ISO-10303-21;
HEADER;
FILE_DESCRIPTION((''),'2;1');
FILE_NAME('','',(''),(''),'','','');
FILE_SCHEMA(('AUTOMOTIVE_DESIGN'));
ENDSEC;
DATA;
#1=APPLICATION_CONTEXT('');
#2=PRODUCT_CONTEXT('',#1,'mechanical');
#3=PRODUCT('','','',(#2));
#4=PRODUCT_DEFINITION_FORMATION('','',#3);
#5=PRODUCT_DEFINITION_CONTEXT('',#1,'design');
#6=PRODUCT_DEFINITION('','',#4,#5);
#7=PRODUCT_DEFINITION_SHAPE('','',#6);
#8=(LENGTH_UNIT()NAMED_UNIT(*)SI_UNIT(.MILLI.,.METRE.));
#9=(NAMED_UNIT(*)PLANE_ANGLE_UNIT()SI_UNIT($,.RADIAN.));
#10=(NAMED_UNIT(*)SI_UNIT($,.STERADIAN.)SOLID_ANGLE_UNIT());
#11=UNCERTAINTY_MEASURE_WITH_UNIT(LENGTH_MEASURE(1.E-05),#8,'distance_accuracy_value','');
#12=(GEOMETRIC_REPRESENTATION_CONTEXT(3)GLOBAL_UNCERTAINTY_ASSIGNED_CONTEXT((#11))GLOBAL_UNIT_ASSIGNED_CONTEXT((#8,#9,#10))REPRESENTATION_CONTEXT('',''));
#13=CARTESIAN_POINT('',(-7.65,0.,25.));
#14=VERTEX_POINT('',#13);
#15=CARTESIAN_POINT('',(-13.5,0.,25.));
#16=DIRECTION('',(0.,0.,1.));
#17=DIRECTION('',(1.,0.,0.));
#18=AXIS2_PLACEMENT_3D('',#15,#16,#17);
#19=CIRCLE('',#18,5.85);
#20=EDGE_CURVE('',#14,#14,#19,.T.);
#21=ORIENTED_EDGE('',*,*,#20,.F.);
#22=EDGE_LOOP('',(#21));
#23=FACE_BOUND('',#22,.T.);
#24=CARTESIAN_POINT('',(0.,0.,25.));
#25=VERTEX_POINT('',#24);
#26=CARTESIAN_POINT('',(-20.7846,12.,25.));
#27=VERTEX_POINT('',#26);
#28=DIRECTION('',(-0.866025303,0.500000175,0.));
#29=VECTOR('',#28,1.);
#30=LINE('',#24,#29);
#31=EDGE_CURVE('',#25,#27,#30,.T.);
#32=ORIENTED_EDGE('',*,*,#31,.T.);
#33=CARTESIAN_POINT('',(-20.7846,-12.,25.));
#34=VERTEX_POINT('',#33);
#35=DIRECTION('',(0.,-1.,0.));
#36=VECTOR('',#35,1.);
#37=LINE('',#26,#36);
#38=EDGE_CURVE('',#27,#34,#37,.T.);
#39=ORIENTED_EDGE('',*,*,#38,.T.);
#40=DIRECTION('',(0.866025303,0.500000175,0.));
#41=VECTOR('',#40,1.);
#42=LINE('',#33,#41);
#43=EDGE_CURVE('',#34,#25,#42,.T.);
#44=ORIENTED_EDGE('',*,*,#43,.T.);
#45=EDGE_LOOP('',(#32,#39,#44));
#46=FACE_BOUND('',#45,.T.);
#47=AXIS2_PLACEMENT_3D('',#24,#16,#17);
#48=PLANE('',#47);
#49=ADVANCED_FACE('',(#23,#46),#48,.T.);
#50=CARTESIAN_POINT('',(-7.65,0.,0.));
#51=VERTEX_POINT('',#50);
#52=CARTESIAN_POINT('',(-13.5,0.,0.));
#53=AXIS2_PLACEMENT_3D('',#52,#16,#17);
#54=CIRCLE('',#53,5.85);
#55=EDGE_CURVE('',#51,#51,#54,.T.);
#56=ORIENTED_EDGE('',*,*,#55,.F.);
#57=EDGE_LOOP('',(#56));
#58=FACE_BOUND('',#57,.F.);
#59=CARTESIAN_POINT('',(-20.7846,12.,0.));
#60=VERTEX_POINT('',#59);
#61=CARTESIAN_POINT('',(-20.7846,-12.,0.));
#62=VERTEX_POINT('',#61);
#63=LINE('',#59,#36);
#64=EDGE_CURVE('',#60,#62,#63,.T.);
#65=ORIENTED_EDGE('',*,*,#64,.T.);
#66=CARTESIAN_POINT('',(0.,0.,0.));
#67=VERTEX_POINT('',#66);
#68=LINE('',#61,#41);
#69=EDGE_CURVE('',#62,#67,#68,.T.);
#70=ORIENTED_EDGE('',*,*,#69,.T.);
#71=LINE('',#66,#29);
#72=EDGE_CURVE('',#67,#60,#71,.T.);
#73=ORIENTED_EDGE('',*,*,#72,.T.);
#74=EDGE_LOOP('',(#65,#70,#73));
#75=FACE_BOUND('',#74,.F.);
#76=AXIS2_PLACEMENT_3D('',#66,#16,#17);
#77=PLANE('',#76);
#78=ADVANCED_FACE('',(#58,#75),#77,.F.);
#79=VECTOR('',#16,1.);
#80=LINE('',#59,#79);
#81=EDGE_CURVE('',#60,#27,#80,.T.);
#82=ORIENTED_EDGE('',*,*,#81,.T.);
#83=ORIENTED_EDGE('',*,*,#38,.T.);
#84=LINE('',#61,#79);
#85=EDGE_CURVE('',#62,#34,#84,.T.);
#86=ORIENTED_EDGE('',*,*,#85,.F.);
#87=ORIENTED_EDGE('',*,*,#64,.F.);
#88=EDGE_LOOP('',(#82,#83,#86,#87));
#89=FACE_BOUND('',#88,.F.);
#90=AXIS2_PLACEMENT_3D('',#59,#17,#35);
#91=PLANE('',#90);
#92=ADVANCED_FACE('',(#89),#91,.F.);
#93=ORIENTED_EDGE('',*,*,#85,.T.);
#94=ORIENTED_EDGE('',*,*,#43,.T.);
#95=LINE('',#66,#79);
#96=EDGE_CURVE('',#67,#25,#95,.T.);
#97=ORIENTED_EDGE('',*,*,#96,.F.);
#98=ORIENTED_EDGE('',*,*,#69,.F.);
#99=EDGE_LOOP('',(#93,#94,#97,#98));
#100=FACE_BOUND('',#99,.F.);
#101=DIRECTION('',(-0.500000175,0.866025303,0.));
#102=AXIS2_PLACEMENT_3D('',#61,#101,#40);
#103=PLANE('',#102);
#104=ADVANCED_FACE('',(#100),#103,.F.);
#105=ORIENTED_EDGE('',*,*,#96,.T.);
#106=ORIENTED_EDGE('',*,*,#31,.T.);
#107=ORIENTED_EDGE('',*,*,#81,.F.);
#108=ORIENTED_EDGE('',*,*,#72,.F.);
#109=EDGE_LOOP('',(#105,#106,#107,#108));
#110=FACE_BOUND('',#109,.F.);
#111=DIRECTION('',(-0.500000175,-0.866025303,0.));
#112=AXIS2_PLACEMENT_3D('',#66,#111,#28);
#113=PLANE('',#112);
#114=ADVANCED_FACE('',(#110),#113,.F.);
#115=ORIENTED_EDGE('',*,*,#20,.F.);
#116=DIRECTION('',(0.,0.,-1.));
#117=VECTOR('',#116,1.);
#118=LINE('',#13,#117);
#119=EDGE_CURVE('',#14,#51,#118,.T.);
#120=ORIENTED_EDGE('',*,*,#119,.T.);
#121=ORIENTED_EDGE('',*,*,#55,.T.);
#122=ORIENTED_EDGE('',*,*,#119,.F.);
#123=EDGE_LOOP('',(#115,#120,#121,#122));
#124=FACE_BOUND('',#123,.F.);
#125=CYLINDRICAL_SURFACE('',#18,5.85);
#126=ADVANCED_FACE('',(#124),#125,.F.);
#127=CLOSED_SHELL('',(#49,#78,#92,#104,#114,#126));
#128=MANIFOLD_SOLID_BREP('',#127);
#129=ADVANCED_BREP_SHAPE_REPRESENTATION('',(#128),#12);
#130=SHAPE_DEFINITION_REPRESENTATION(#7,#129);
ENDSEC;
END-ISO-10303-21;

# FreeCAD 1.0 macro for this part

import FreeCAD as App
import Part
import Sketcher
Q = App.Units.Quantity


def add_polygon(sketch, points):
    """Adds a closed chain of lines whose ends are joined by coincident constraints."""
    first, n = sketch.GeometryCount, len(points)
    for a, b in zip(points, points[1:] + points[:1]):
        sketch.addGeometry(Part.LineSegment(App.Vector(*a, 0), App.Vector(*b, 0)), False)
    for i in range(n):
        sketch.addConstraint(Sketcher.Constraint("Coincident", first + i, 2, first + (i + 1) % n, 1))

doc = App.newDocument("Part")
params = doc.addObject("Spreadsheet::Sheet", "Params")
for row, (alias, value) in enumerate([
    ("sketch1_height", "24 mm"),
    ("sketch1_length", "24 mm"),
    ("pad1_length", "25 mm"),
    ("sketch2_diameter", "11.7 mm"),
    ("pocket1_length", "25 mm"),
], start=1):
    params.set(f"A{row}", alias)
    params.set(f"B{row}", "=" + value)
    params.setAlias(f"B{row}", alias)

body = doc.addObject("PartDesign::Body", "Body")

# Sketch on XY plane
sketch1 = body.newObject("Sketcher::SketchObject", "Sketch")
sketch1.AttachmentSupport = (doc.getObject("XY_Plane"), [""])
sketch1.MapMode = "FlatFace"
add_polygon(sketch1, [(-21, -12), (0, 0), (-21, 12)])  # lines 0-2
sketch1.addConstraint(Sketcher.Constraint("Vertical", 2))
sketch1.addConstraint(Sketcher.Constraint("Coincident", 0, 2, -1, 1))
sketch1.addConstraint(Sketcher.Constraint("Equal", 0, 1))
sketch1.addConstraint(Sketcher.Constraint("DistanceY", 2, 2, 2, 1, Q("24 mm")))
sketch1.addConstraint(Sketcher.Constraint("Distance", 0, Q("24 mm")))
sketch1.setExpression("Constraints[6]", "Params.sketch1_height")
sketch1.setExpression("Constraints[7]", "Params.sketch1_length")
pad1 = body.newObject("PartDesign::Pad", "Pad")
pad1.Profile = sketch1
pad1.setExpression("Length", "Params.pad1_length")

# Sketch on XY plane
sketch2 = body.newObject("Sketcher::SketchObject", "Sketch001")
sketch2.AttachmentSupport = (doc.getObject("XY_Plane"), [""])
sketch2.MapMode = "FlatFace"
sketch2.AttachmentOffset = App.Placement(App.Vector(0, 0, 25), App.Rotation())
sketch2.addGeometry(Part.Circle(App.Vector(-14, 0, 0), App.Vector(0, 0, 1), 6), False)
sketch2.addConstraint(Sketcher.Constraint("PointOnObject", 0, 3, -1))
sketch2.addConstraint(Sketcher.Constraint("Diameter", 0, Q("11.7 mm")))
sketch2.addConstraint(Sketcher.Constraint("DistanceX", 0, 3, -1, 1, Q("13.5 mm")))
sketch2.setExpression("Constraints[1]", "Params.sketch2_diameter")
pocket1 = body.newObject("PartDesign::Pocket", "Pocket")
pocket1.Profile = sketch2
pocket1.setExpression("Length", "Params.pocket1_length")

doc.recompute()
